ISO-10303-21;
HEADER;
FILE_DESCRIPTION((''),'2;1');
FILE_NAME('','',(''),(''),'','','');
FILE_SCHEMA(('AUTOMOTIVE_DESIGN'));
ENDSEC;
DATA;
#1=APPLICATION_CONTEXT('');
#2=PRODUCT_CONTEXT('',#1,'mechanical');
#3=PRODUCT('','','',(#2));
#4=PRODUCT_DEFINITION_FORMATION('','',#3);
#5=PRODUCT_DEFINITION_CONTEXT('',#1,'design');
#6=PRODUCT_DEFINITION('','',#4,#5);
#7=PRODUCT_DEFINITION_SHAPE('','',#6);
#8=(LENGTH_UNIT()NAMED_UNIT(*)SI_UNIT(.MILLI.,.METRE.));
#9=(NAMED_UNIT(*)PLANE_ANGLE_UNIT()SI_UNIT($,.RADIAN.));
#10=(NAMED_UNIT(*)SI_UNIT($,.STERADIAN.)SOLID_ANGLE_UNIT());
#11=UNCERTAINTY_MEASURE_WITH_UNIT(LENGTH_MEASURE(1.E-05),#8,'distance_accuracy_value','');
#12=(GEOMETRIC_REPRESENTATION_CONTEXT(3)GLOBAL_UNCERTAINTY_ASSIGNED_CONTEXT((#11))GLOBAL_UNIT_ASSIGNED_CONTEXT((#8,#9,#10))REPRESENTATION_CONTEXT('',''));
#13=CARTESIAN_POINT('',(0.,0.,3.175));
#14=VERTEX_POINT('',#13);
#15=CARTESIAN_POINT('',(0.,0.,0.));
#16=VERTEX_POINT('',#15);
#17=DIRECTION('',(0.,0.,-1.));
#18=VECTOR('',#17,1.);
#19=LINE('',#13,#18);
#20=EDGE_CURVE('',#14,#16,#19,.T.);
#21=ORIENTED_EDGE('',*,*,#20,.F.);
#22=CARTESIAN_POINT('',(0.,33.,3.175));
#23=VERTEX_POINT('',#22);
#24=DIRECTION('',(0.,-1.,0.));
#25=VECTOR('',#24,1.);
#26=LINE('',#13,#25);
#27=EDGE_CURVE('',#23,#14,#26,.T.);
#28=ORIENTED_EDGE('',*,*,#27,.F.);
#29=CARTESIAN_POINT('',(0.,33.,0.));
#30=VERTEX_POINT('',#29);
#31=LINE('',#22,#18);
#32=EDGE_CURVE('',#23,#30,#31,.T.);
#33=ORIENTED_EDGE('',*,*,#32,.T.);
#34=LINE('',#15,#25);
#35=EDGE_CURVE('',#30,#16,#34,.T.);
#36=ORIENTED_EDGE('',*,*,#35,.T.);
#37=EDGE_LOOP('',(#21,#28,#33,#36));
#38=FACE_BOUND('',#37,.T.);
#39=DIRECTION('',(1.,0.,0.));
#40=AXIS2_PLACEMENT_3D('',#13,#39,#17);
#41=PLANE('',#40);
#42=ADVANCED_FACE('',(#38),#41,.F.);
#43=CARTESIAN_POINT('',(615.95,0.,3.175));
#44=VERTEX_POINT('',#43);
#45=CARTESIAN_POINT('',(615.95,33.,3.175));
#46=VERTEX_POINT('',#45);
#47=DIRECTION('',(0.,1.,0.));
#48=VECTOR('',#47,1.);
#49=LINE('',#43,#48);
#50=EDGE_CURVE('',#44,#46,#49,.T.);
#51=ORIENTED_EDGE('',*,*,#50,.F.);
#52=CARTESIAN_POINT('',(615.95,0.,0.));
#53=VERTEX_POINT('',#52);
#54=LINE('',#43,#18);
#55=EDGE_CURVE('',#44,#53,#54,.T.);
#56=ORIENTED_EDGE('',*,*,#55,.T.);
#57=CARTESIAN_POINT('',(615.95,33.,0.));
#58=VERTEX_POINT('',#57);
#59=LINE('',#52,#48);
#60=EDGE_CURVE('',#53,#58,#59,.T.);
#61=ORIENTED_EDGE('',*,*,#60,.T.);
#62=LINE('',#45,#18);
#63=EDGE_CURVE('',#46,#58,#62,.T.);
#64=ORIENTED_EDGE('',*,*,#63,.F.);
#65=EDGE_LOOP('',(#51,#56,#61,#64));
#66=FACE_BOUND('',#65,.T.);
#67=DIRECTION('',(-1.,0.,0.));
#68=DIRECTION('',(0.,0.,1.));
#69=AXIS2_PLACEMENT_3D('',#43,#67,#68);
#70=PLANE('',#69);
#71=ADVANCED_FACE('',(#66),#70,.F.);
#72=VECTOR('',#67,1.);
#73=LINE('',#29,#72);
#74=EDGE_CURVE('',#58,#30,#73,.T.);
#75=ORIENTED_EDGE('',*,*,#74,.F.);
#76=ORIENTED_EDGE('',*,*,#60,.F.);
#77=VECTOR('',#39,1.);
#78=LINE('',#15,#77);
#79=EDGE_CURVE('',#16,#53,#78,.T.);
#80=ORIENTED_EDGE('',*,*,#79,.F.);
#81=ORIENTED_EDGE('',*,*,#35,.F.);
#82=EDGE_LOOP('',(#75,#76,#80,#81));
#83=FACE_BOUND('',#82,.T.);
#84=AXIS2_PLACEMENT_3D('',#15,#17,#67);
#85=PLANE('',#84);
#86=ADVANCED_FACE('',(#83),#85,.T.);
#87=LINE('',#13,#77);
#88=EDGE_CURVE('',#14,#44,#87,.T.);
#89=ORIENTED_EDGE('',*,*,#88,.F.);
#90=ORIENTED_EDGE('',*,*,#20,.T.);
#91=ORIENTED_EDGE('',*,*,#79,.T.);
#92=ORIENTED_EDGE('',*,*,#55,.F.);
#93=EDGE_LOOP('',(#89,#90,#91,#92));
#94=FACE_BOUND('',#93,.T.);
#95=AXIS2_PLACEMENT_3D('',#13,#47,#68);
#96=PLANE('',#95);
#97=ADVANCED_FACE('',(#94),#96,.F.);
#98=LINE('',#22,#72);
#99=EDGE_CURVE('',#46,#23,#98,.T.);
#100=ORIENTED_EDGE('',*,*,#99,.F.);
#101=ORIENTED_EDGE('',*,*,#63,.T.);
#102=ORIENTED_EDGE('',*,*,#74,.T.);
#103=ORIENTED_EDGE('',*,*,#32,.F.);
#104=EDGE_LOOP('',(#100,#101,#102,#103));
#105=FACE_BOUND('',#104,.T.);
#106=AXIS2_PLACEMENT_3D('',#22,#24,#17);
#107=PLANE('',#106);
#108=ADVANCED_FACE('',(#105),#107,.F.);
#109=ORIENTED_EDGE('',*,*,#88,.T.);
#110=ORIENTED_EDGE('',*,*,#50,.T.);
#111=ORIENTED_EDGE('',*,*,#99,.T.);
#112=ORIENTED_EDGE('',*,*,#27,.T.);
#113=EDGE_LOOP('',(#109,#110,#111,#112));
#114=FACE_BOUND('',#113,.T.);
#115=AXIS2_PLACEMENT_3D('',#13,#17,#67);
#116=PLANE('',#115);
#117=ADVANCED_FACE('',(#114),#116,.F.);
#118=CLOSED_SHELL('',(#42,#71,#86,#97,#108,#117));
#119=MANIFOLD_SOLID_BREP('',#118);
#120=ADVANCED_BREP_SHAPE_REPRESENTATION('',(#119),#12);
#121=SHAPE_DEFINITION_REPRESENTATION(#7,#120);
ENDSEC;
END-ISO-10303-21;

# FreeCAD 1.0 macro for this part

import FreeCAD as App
import Part
import Sketcher
from FreeCAD import Vector
Q = App.Units.Quantity

doc = App.newDocument("Part")
body = doc.addObject("PartDesign::Body", "Body")

sketch1 = body.newObject("Sketcher::SketchObject", "Sketch")
sketch1.AttachmentSupport = (doc.getObject("XY_Plane"), [""])
sketch1.MapMode = "FlatFace"
sketch1.addGeometry([
    Part.LineSegment(Vector(0, 33, 0), Vector(0, 0, 0)),
    Part.LineSegment(Vector(0, 0, 0), Vector(616, 0, 0)),
    Part.LineSegment(Vector(616, 0, 0), Vector(616, 33, 0)),
    Part.LineSegment(Vector(616, 33, 0), Vector(0, 33, 0)),
], False)
sketch1.addConstraint([
    Sketcher.Constraint("Coincident", 0, 2, 1, 1),
    Sketcher.Constraint("Coincident", 1, 2, 2, 1),
    Sketcher.Constraint("Coincident", 2, 2, 3, 1),
    Sketcher.Constraint("Coincident", 3, 2, 0, 1),
    Sketcher.Constraint("Vertical", 0),
    Sketcher.Constraint("Horizontal", 1),
    Sketcher.Constraint("Vertical", 2),
    Sketcher.Constraint("Horizontal", 3),
    Sketcher.Constraint("Coincident", 0, 2, -1, 1),
    Sketcher.Constraint("DistanceX", 1, 1, 1, 2, Q("24.25 in")),
    Sketcher.Constraint("DistanceY", 0, 2, 0, 1, 33.0),
])
pad1 = body.newObject("PartDesign::Pad", "Pad")
pad1.Profile = sketch1
pad1.Length = Q("0.125 in")

doc.recompute()
